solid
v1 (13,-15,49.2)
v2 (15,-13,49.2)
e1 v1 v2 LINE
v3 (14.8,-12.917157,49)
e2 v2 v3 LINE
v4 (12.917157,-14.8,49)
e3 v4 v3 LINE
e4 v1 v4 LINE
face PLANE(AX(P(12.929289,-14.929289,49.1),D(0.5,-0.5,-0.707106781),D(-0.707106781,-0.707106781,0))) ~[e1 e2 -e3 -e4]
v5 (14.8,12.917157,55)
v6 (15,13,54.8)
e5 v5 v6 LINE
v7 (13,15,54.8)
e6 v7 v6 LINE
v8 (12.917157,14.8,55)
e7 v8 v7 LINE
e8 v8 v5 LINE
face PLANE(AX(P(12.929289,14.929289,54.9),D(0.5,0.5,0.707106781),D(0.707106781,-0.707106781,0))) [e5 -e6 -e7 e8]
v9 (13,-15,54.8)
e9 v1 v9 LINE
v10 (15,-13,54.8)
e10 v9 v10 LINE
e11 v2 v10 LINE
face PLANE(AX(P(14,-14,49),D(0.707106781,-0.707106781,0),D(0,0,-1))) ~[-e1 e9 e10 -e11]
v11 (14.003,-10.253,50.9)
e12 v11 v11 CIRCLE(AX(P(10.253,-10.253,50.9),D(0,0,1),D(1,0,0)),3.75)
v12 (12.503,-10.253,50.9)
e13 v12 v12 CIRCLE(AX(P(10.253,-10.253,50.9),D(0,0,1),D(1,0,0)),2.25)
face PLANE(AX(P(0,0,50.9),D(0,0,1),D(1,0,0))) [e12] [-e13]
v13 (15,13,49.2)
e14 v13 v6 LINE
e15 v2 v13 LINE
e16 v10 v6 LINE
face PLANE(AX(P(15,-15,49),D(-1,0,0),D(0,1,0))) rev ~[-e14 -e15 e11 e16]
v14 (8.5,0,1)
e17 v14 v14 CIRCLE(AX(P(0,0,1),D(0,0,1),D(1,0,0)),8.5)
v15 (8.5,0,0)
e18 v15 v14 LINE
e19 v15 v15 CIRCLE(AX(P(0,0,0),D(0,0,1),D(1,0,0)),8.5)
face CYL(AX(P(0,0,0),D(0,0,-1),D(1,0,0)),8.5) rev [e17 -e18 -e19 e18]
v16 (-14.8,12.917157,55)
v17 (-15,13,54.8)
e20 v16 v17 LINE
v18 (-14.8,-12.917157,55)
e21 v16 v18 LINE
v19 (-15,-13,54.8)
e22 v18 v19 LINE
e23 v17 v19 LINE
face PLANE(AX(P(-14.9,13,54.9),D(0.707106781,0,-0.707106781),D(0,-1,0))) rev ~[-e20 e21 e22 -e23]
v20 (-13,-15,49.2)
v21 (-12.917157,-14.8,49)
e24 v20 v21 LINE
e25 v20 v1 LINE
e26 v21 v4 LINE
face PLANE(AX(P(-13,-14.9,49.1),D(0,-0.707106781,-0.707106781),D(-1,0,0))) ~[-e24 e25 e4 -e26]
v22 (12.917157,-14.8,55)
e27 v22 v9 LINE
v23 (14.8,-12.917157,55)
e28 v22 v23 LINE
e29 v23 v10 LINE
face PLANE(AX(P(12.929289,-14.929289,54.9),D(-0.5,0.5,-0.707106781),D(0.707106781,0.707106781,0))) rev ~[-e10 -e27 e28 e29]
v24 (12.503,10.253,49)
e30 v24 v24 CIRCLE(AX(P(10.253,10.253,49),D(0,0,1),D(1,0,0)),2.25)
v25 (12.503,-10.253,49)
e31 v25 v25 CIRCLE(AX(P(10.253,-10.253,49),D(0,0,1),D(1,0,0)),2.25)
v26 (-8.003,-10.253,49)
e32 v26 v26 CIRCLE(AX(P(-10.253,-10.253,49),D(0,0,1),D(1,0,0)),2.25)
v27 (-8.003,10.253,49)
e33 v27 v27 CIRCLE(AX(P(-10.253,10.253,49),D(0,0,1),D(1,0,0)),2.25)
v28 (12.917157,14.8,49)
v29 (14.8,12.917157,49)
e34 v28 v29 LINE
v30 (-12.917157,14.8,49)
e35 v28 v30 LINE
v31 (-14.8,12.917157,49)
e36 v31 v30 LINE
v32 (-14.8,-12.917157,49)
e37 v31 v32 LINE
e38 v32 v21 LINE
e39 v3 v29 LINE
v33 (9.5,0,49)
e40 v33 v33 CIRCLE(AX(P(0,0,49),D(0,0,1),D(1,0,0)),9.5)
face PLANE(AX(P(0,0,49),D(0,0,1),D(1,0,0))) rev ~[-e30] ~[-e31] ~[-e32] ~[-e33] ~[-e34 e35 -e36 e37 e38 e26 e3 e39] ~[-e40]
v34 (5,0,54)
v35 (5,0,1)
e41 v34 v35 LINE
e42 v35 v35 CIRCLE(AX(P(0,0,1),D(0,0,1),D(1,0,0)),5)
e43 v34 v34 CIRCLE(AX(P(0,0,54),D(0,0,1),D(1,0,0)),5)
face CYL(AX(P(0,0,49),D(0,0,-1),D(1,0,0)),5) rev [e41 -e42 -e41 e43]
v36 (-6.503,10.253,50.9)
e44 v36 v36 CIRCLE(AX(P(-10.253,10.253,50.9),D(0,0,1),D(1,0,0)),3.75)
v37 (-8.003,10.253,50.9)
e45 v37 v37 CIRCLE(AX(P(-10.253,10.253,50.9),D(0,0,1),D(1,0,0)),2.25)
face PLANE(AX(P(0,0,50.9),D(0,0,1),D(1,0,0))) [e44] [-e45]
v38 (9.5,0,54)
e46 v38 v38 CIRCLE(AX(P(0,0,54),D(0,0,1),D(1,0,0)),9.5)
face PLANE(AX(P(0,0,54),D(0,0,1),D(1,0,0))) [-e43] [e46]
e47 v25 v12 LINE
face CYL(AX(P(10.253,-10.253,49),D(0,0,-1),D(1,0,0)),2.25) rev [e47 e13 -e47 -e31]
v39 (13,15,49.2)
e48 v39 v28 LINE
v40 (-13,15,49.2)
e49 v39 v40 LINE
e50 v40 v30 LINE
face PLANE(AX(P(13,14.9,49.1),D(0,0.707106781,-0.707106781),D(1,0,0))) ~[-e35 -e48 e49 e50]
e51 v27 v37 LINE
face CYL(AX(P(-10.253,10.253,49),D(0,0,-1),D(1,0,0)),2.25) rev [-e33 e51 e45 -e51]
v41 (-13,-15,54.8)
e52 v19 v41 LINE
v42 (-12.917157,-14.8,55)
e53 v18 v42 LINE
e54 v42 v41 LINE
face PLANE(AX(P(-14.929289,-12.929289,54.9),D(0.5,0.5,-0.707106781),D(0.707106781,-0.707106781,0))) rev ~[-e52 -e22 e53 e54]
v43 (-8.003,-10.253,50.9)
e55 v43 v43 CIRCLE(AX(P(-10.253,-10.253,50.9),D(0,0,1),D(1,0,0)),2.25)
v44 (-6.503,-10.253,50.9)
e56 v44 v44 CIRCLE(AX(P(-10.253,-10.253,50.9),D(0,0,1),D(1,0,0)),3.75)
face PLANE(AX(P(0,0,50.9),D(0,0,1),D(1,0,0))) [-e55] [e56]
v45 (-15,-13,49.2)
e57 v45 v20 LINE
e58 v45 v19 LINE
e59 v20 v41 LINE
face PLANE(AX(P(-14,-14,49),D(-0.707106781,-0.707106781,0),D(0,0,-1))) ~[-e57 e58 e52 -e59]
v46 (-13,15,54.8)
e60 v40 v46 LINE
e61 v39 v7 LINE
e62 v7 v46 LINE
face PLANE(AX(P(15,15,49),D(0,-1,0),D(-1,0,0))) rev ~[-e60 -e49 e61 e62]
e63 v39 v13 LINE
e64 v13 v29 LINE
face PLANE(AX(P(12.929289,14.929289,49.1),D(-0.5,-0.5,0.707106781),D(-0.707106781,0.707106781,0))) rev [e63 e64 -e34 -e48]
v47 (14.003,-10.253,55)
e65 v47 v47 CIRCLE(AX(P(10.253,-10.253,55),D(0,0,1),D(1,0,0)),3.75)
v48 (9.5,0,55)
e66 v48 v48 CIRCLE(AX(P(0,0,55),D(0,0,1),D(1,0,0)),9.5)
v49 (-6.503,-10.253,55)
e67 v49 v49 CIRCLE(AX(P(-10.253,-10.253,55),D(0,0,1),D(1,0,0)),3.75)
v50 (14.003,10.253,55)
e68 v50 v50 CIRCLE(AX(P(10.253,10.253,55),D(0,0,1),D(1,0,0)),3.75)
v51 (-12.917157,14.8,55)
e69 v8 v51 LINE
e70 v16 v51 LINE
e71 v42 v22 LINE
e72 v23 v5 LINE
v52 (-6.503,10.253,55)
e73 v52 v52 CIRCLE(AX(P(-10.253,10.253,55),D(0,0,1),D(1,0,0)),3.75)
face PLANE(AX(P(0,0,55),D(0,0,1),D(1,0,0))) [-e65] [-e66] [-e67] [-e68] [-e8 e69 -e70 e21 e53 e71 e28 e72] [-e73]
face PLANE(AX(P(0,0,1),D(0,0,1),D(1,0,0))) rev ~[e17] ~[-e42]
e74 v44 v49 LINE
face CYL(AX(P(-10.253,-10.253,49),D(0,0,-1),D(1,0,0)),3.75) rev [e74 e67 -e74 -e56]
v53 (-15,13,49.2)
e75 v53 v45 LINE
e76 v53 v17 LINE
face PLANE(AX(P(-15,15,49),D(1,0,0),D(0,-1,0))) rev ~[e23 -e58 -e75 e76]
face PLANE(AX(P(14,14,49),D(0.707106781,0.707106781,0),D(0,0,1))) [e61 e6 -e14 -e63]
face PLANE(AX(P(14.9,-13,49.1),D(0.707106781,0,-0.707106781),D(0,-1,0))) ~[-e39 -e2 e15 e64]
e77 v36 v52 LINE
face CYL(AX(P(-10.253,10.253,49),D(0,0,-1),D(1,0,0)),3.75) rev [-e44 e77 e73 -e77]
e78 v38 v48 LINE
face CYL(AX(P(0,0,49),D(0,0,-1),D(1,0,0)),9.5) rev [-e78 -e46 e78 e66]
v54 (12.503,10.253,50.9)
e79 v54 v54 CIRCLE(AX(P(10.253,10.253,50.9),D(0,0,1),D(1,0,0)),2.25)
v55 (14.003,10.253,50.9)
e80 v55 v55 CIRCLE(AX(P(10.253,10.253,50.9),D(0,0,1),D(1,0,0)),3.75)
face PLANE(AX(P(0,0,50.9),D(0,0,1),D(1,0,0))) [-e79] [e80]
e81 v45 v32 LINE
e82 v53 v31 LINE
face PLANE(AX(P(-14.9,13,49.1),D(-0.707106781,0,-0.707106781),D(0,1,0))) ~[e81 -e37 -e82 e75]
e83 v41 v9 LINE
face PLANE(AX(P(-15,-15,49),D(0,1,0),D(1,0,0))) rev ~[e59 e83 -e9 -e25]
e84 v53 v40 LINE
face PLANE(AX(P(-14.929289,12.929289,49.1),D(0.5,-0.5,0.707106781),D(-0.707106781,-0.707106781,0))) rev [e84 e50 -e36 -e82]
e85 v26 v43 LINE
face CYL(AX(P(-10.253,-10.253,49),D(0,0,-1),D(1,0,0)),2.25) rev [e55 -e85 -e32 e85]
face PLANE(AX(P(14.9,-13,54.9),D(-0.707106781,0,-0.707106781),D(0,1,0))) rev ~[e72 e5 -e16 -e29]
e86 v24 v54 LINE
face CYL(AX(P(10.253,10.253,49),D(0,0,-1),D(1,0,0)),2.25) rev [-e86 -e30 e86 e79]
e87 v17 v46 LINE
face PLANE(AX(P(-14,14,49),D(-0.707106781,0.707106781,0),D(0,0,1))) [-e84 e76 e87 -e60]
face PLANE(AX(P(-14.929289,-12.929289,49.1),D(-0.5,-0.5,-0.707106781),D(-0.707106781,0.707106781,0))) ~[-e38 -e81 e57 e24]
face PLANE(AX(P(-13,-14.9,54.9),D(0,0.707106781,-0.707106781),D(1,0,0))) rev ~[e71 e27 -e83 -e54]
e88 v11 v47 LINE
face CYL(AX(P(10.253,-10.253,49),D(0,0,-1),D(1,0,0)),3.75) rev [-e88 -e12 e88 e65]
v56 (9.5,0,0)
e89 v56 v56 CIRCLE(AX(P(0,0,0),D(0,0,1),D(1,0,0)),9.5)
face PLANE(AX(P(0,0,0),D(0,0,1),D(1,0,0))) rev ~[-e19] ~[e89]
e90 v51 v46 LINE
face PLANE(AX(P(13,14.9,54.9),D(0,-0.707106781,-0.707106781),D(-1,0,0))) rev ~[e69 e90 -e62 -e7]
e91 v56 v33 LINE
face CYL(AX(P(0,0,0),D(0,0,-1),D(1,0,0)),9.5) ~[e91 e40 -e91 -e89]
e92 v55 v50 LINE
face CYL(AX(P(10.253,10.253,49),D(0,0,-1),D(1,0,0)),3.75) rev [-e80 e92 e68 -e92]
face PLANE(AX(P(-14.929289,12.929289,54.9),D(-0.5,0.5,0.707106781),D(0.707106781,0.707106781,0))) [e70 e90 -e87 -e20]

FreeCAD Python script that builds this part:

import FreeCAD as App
import Part
import Sketcher
from FreeCAD import Vector


def edges_at(feature, points):
    """Names of the edges that pass closest to the given points."""
    edges = feature.Shape.Edges
    near = lambda p: min(range(len(edges)), key=lambda i: edges[i].distToShape(Part.Vertex(*p))[0])
    return sorted({f"Edge{near(p) + 1}" for p in points})

doc = App.newDocument("Part")
body = doc.addObject("PartDesign::Body", "Body")
body.AllowCompound = True

sketch1 = body.newObject("Sketcher::SketchObject", "Sketch")
sketch1.AttachmentSupport = (doc.getObject("XY_Plane"), [""])
sketch1.MapMode = "FlatFace"
sketch1.addGeometry(Part.Circle(Vector(0, 0, 0), Vector(0, 0, 1), 9.5), False)
sketch1.addGeometry(Part.Circle(Vector(0, 0, 0), Vector(0, 0, 1), 5), False)
sketch1.addConstraint(Sketcher.Constraint("Coincident", 0, 3, -1, 1))
sketch1.addConstraint(Sketcher.Constraint("Coincident", 1, 3, -1, 1))
sketch1.addConstraint(Sketcher.Constraint("Diameter", 0, 19.0))
sketch1.addConstraint(Sketcher.Constraint("Diameter", 1, 10.0))
pad1 = body.newObject("PartDesign::Pad", "Pad")
pad1.Profile = sketch1
pad1.Length = 49

sketch2 = body.newObject("Sketcher::SketchObject", "Sketch001")
sketch2.AttachmentSupport = (doc.getObject("XY_Plane"), [""])
sketch2.MapMode = "FlatFace"
sketch2.addGeometry(Part.Circle(Vector(0, 0, 0), Vector(0, 0, 1), 8.5), False)
sketch2.addGeometry(Part.Circle(Vector(0, 0, 0), Vector(0, 0, 1), 5), False)
sketch2.addConstraint(Sketcher.Constraint("Coincident", 0, 3, -1, 1))
sketch2.addConstraint(Sketcher.Constraint("Coincident", 1, 3, -1, 1))
sketch2.addConstraint(Sketcher.Constraint("Diameter", 0, 17.0))
sketch2.addConstraint(Sketcher.Constraint("Diameter", 1, 10.0))
pocket1 = body.newObject("PartDesign::Pocket", "Pocket")
pocket1.Profile = sketch2
pocket1.Length = 1
pocket1.Reversed = True

sketch3 = body.newObject("Sketcher::SketchObject", "Sketch002")
sketch3.AttachmentSupport = (doc.getObject("XY_Plane"), [""])
sketch3.MapMode = "FlatFace"
sketch3.AttachmentOffset = App.Placement(Vector(0, 0, 49), App.Rotation())
sketch3.addGeometry(Part.LineSegment(Vector(-15, 15, 0), Vector(-15, -15, 0)), False)
sketch3.addGeometry(Part.LineSegment(Vector(-15, -15, 0), Vector(15, -15, 0)), False)
sketch3.addGeometry(Part.LineSegment(Vector(15, -15, 0), Vector(15, 15, 0)), False)
sketch3.addGeometry(Part.LineSegment(Vector(15, 15, 0), Vector(-15, 15, 0)), False)
sketch3.addGeometry(Part.Circle(Vector(-10.253, -10.253, 0), Vector(0, 0, 1), 3.75), False)
sketch3.addGeometry(Part.Circle(Vector(10.253, -10.253, 0), Vector(0, 0, 1), 3.75), False)
sketch3.addGeometry(Part.Circle(Vector(-10.253, 10.253, 0), Vector(0, 0, 1), 3.75), False)
sketch3.addGeometry(Part.Circle(Vector(0, 0, 0), Vector(0, 0, 1), 9.5), False)
sketch3.addGeometry(Part.Circle(Vector(10.253, 10.253, 0), Vector(0, 0, 1), 3.75), False)
sketch3.addConstraint(Sketcher.Constraint("Coincident", 0, 2, 1, 1))
sketch3.addConstraint(Sketcher.Constraint("Coincident", 1, 2, 2, 1))
sketch3.addConstraint(Sketcher.Constraint("Coincident", 2, 2, 3, 1))
sketch3.addConstraint(Sketcher.Constraint("Coincident", 3, 2, 0, 1))
sketch3.addConstraint(Sketcher.Constraint("Vertical", 0))
sketch3.addConstraint(Sketcher.Constraint("Horizontal", 1))
sketch3.addConstraint(Sketcher.Constraint("Vertical", 2))
sketch3.addConstraint(Sketcher.Constraint("Horizontal", 3))
sketch3.addConstraint(Sketcher.Constraint("Coincident", 7, 3, -1, 1))
sketch3.addConstraint(Sketcher.Constraint("Equal", 4, 5))
sketch3.addConstraint(Sketcher.Constraint("Equal", 5, 6))
sketch3.addConstraint(Sketcher.Constraint("Equal", 6, 8))
sketch3.addConstraint(Sketcher.Constraint("Symmetric", 5, 3, 6, 3, -1, 1))
sketch3.addConstraint(Sketcher.Constraint("Symmetric", 4, 3, 8, 3, -1, 1))
sketch3.addConstraint(Sketcher.Constraint("Symmetric", 0, 2, 2, 2, -1, 1))
sketch3.addConstraint(Sketcher.Constraint("Symmetric", 4, 3, 5, 3, -2))
sketch3.addConstraint(Sketcher.Constraint("Equal", 3, 0))
sketch3.addConstraint(Sketcher.Constraint("Diameter", 4, 7.5))
sketch3.addConstraint(Sketcher.Constraint("DistanceX", 1, 1, 1, 2, 30.0))
sketch3.addConstraint(Sketcher.Constraint("Diameter", 7, 19.0))
sketch3.addConstraint(Sketcher.Constraint("DistanceX", 4, 3, -1, 1, 10.253))
sketch3.addConstraint(Sketcher.Constraint("DistanceY", 4, 3, -1, 1, 10.253))
pad2 = body.newObject("PartDesign::Pad", "Pad001")
pad2.Profile = sketch3
pad2.Length = 6
doc.recompute()

chamfer = body.newObject("PartDesign::Chamfer", "Chamfer")
chamfer.Base = (pad2, edges_at(pad2, [
    (-15, -15, 52),
    (15, -15, 52),
    (15, 15, 52),
    (-15, 15, 52),
]))
chamfer.Size = 2

sketch4 = body.newObject("Sketcher::SketchObject", "Sketch003")
sketch4.AttachmentSupport = (doc.getObject("XY_Plane"), [""])
sketch4.MapMode = "FlatFace"
sketch4.AttachmentOffset = App.Placement(Vector(0, 0, 49), App.Rotation())
sketch4.addGeometry(Part.Circle(Vector(10.253, 10.253, 0), Vector(0, 0, 1), 3.75), False)
sketch4.addGeometry(Part.Circle(Vector(10.253, 10.253, 0), Vector(0, 0, 1), 2.25), False)
sketch4.addGeometry(Part.Circle(Vector(10.253, -10.253, 0), Vector(0, 0, 1), 3.75), False)
sketch4.addGeometry(Part.Circle(Vector(10.253, -10.253, 0), Vector(0, 0, 1), 2.25), False)
sketch4.addGeometry(Part.Circle(Vector(-10.253, 10.253, 0), Vector(0, 0, 1), 3.75), False)
sketch4.addGeometry(Part.Circle(Vector(-10.253, 10.253, 0), Vector(0, 0, 1), 2.25), False)
sketch4.addGeometry(Part.Circle(Vector(-10.253, -10.253, 0), Vector(0, 0, 1), 3.75), False)
sketch4.addGeometry(Part.Circle(Vector(-10.253, -10.253, 0), Vector(0, 0, 1), 2.25), False)
sketch4.addConstraint(Sketcher.Constraint("Coincident", 1, 3, 0, 3))
sketch4.addConstraint(Sketcher.Constraint("Coincident", 3, 3, 2, 3))
sketch4.addConstraint(Sketcher.Constraint("Coincident", 5, 3, 4, 3))
sketch4.addConstraint(Sketcher.Constraint("Coincident", 7, 3, 6, 3))
sketch4.addConstraint(Sketcher.Constraint("Equal", 0, 2))
sketch4.addConstraint(Sketcher.Constraint("Equal", 1, 3))
sketch4.addConstraint(Sketcher.Constraint("Equal", 2, 4))
sketch4.addConstraint(Sketcher.Constraint("Equal", 3, 5))
sketch4.addConstraint(Sketcher.Constraint("Equal", 4, 6))
sketch4.addConstraint(Sketcher.Constraint("Equal", 5, 7))
sketch4.addConstraint(Sketcher.Constraint("Symmetric", 2, 3, 4, 3, -1, 1))
sketch4.addConstraint(Sketcher.Constraint("Symmetric", 0, 3, 6, 3, -1, 1))
sketch4.addConstraint(Sketcher.Constraint("Symmetric", 0, 3, 4, 3, -2))
sketch4.addConstraint(Sketcher.Constraint("Diameter", 0, 7.5))
sketch4.addConstraint(Sketcher.Constraint("Diameter", 1, 4.5))
sketch4.addConstraint(Sketcher.Constraint("DistanceX", -1, 1, 0, 3, 10.253))
sketch4.addConstraint(Sketcher.Constraint("DistanceY", -1, 1, 0, 3, 10.253))
pad3 = body.newObject("PartDesign::Pad", "Pad002")
pad3.Profile = sketch4
pad3.Length = 1.9

sketch5 = body.newObject("Sketcher::SketchObject", "Sketch004")
sketch5.AttachmentSupport = (doc.getObject("XY_Plane"), [""])
sketch5.MapMode = "FlatFace"
sketch5.AttachmentOffset = App.Placement(Vector(0, 0, 49), App.Rotation())
sketch5.addGeometry(Part.Circle(Vector(0, 0, 0), Vector(0, 0, 1), 9.5), False)
sketch5.addGeometry(Part.Circle(Vector(0, 0, 0), Vector(0, 0, 1), 5), False)
sketch5.addConstraint(Sketcher.Constraint("Coincident", 0, 3, -1, 1))
sketch5.addConstraint(Sketcher.Constraint("Coincident", 1, 3, -1, 1))
sketch5.addConstraint(Sketcher.Constraint("Diameter", 0, 19.0))
sketch5.addConstraint(Sketcher.Constraint("Diameter", 1, 10.0))
pad4 = body.newObject("PartDesign::Pad", "Pad003")
pad4.Profile = sketch5
pad4.Length = 5
doc.recompute()

chamfer2 = body.newObject("PartDesign::Chamfer", "Chamfer001")
chamfer2.Base = (pad4, edges_at(pad4, [
    (0, -15, 55),
    (-15, 0, 55),
    (0, 15, 55),
    (15, 0, 55),
    (14, -14, 55),
    (-14, -14, 55),
    (-14, 14, 55),
    (14, 14, 55),
    (-14, -14, 49),
    (0, -15, 49),
    (-15, 0, 49),
    (14, -14, 49),
    (15, 0, 49),
    (14, 14, 49),
    (0, 15, 49),
    (-14, 14, 49),
]))
chamfer2.Size = 0.2

doc.recompute()
